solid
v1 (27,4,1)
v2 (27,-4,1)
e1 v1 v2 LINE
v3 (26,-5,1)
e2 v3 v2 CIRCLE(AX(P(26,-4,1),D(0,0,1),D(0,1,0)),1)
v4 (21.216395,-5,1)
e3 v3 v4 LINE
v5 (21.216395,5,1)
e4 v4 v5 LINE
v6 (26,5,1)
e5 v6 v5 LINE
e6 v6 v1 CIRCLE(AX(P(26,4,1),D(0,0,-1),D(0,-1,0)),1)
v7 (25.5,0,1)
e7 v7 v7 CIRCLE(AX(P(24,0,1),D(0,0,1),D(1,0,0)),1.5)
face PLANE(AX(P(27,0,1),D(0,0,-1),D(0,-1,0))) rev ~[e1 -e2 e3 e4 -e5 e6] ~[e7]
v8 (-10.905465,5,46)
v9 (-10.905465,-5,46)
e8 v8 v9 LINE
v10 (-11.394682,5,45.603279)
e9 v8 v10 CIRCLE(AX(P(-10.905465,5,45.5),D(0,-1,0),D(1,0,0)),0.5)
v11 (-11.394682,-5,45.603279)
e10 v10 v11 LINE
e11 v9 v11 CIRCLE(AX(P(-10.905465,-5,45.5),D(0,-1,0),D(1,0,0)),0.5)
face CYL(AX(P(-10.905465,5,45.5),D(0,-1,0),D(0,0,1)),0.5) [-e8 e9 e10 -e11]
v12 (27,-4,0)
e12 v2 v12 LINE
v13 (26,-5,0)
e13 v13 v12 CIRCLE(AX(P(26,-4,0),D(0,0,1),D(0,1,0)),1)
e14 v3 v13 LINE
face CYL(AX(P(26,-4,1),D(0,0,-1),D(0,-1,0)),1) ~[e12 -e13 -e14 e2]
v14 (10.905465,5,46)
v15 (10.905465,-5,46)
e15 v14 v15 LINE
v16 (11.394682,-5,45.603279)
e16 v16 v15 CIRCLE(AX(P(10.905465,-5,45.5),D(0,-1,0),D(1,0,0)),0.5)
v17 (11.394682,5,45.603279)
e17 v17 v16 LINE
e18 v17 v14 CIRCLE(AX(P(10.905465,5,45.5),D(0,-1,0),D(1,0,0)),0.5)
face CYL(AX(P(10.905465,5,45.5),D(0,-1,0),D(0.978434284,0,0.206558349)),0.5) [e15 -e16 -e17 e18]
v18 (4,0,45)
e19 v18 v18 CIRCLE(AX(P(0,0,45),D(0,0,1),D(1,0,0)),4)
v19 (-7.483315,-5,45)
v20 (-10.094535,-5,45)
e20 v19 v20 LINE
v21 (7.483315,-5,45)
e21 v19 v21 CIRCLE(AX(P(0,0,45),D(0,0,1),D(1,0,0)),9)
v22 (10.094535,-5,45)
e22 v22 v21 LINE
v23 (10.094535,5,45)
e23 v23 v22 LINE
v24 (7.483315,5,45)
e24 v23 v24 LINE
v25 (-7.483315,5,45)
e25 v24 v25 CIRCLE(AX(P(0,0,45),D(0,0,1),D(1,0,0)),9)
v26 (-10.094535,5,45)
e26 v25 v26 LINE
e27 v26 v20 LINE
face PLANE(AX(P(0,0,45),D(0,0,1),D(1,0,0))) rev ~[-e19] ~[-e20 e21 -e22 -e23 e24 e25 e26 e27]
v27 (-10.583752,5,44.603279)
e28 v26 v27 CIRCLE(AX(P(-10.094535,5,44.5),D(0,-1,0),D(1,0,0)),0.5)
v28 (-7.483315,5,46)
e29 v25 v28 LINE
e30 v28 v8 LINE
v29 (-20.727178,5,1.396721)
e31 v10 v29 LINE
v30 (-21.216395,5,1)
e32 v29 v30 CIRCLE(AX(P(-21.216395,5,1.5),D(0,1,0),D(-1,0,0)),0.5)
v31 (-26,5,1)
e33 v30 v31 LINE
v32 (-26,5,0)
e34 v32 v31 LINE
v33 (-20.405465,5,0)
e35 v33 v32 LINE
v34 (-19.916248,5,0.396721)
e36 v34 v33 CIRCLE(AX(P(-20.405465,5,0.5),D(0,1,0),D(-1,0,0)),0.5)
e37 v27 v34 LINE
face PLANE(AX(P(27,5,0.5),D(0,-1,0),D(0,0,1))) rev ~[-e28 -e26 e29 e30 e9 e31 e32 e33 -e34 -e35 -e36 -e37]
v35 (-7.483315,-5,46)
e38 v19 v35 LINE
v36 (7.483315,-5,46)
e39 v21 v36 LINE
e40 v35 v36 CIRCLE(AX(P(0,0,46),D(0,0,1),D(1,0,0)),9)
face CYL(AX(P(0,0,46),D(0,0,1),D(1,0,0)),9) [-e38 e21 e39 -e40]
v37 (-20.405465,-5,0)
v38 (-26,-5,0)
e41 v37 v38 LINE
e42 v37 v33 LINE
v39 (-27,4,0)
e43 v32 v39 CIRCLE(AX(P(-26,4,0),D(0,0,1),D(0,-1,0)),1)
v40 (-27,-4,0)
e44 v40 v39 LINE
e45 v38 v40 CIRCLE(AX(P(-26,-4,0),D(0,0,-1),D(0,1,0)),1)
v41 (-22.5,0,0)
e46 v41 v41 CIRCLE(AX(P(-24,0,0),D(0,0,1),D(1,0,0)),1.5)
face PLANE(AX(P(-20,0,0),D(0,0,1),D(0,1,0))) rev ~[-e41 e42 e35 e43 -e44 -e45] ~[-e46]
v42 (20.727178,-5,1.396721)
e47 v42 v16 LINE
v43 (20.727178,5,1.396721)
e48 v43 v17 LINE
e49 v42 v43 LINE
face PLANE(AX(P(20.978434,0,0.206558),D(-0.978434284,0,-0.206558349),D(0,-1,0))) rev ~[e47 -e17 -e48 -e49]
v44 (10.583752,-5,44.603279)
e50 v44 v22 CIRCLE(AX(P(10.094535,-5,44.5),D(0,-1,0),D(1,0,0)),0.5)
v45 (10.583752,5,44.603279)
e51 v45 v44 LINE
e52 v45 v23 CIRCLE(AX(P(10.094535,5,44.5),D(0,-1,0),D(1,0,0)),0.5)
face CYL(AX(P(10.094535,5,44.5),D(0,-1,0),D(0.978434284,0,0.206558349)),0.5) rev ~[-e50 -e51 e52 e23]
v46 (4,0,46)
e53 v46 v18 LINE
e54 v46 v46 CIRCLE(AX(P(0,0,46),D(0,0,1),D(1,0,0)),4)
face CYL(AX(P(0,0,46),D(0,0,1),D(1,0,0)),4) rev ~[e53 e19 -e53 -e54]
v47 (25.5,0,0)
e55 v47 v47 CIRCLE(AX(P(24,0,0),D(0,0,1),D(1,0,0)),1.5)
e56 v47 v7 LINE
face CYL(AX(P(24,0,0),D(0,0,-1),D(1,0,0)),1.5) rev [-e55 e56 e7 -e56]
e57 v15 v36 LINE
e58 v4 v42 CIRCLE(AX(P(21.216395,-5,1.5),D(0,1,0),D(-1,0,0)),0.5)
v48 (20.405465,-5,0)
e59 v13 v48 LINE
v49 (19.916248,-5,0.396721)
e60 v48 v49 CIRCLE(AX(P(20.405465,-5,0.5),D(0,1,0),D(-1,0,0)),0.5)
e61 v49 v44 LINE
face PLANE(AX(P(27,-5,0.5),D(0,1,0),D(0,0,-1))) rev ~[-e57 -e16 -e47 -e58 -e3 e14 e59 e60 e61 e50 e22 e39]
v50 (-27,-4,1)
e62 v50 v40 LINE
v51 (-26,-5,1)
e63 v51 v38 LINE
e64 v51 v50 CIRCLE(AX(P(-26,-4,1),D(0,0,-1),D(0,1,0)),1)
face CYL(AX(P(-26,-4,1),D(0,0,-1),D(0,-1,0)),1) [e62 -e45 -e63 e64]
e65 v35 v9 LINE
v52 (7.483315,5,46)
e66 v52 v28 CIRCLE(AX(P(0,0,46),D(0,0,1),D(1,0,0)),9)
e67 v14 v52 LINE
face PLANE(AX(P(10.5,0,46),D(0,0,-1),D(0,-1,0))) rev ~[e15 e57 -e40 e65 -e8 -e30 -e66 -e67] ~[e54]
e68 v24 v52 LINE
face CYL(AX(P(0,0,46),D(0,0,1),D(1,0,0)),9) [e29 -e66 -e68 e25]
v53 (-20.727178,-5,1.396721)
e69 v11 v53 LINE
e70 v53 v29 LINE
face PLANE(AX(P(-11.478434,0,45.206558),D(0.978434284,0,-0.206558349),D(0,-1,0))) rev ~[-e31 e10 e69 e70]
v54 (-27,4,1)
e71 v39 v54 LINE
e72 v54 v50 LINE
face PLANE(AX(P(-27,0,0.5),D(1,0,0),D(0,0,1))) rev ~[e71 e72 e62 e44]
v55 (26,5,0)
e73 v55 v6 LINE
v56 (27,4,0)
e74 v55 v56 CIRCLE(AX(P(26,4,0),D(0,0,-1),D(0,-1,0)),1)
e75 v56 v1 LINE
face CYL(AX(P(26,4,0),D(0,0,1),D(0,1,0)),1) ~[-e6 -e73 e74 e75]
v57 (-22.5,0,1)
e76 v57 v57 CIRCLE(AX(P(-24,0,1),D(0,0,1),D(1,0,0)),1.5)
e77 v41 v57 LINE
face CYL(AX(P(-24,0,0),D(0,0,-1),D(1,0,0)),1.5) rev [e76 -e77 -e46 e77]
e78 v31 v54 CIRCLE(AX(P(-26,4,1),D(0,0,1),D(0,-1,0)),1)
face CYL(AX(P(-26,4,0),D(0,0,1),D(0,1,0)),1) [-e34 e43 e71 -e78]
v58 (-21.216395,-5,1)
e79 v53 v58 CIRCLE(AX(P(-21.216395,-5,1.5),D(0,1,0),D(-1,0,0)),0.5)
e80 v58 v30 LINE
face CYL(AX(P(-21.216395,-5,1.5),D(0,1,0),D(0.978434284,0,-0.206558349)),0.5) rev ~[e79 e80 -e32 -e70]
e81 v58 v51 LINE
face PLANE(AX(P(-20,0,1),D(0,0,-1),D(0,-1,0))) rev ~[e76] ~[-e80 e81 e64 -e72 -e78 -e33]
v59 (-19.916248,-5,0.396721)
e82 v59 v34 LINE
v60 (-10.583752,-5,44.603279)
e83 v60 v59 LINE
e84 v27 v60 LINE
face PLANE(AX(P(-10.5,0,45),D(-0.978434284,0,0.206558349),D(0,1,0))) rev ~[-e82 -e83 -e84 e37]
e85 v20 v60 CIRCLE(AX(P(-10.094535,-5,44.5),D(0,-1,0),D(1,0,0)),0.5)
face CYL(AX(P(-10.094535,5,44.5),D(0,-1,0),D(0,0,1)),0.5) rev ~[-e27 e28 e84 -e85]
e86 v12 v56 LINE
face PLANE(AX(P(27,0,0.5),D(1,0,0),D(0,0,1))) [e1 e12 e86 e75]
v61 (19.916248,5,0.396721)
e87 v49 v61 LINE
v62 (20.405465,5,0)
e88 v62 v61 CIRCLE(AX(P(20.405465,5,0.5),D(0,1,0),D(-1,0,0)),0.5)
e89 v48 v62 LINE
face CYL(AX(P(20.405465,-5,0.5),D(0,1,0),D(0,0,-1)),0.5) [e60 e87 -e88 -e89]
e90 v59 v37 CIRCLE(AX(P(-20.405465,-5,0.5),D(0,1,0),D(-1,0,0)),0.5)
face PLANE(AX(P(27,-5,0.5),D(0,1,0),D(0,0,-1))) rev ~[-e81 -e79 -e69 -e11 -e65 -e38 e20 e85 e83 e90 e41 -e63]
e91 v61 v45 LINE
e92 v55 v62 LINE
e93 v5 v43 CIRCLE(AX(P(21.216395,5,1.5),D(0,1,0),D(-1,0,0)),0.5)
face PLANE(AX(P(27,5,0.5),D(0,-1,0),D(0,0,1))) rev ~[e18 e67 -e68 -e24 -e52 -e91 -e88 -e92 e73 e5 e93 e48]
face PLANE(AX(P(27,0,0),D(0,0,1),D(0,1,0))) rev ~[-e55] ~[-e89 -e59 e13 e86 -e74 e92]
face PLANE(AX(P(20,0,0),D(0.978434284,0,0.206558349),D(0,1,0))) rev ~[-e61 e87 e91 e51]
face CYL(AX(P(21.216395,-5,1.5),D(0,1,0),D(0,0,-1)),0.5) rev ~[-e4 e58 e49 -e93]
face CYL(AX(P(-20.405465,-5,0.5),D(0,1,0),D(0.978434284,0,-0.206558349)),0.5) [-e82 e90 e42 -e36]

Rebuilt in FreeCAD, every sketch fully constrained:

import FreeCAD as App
import Part
import Sketcher


def edges_at(feature, points):
    """Names of the edges that pass closest to the given points."""
    edges = feature.Shape.Edges
    near = lambda p: min(range(len(edges)), key=lambda i: edges[i].distToShape(Part.Vertex(*p))[0])
    return sorted({f"Edge{near(p) + 1}" for p in points})

doc = App.newDocument("Part")
params = doc.addObject("Spreadsheet::Sheet", "Params")
for row, (alias, value) in enumerate([
    ("sketch1_width", "10 mm"),
    ("sketch1_height", "1 mm"),
    ("sketch2_width", "7 mm"),
    ("sketch2_width2", "21 mm"),
    ("fillet_radius", "0.5 mm"),
    ("sketch3_diameter", "18 mm"),
    ("sketch4_diameter", "8 mm"),
    ("sketch5_diameter", "3 mm"),
    ("fillet2_radius", "1 mm"),
], start=1):
    params.set(f"A{row}", alias)
    params.set(f"B{row}", "=" + value)
    params.setAlias(f"B{row}", alias)

body = doc.addObject("PartDesign::Body", "Body")

# Sketch on YZ plane
sketch1 = doc.addObject("Sketcher::SketchObject", "Sketch")
body.addObject(sketch1)
sketch1.AttachmentSupport = (doc.YZ_Plane, [""])
sketch1.MapMode = "FlatFace"
sketch1.AttachmentOffset = App.Placement(App.Vector(0, 0, 27), App.Rotation())
sketch1.addGeometry([
    Part.LineSegment(App.Vector(-5, 1, 0), App.Vector(-5, 0, 0)),
    Part.LineSegment(App.Vector(-5, 0, 0), App.Vector(5, 0, 0)),
    Part.LineSegment(App.Vector(5, 0, 0), App.Vector(5, 1, 0)),
    Part.LineSegment(App.Vector(5, 1, 0), App.Vector(-5, 1, 0)),
], False)
sketch1.addConstraint([
    Sketcher.Constraint("Coincident", 0, 2, 1, 1),
    Sketcher.Constraint("Coincident", 1, 2, 2, 1),
    Sketcher.Constraint("Coincident", 2, 2, 3, 1),
    Sketcher.Constraint("Coincident", 3, 2, 0, 1),
    Sketcher.Constraint("Vertical", 0),
    Sketcher.Constraint("Horizontal", 1),
    Sketcher.Constraint("Vertical", 2),
    Sketcher.Constraint("Horizontal", 3),
    Sketcher.Constraint("Symmetric", 0, 2, 1, 2, -1, 1),
    Sketcher.Constraint("DistanceX", 1, 1, 1, 2, 10.0),
    Sketcher.Constraint("DistanceY", 0, 2, 0, 1, 1.0),
])
sketch1.setExpression("Constraints[9]", "Params.sketch1_width")
sketch1.setExpression("Constraints[10]", "Params.sketch1_height")

# Sketch on XZ plane
sketch2 = doc.addObject("Sketcher::SketchObject", "Sketch001")
body.addObject(sketch2)
sketch2.AttachmentSupport = (doc.XZ_Plane, [""])
sketch2.MapMode = "FlatFace"
sketch2.addGeometry([
    Part.LineSegment(App.Vector(27, 0, 0), App.Vector(20, 0, 0)),  # 0
    Part.LineSegment(App.Vector(20, 0, 0), App.Vector(10, 45, 0)),  # 1
    Part.LineSegment(App.Vector(10, 45, 0), App.Vector(-10, 45, 0)),  # 2
    Part.LineSegment(App.Vector(-10, 45, 0), App.Vector(-20, 0, 0)),  # 3
    Part.LineSegment(App.Vector(-20, 0, 0), App.Vector(-27, 0, 0)),  # 4
], False)
sketch2.addConstraint([
    Sketcher.Constraint("Coincident", 0, 2, 1, 1),
    Sketcher.Constraint("Coincident", 1, 2, 2, 1),
    Sketcher.Constraint("Coincident", 2, 2, 3, 1),
    Sketcher.Constraint("Coincident", 3, 2, 4, 1),
    Sketcher.Constraint("Horizontal", 0),
    Sketcher.Constraint("Horizontal", 2),
    Sketcher.Constraint("Horizontal", 4),
    Sketcher.Constraint("Symmetric", 0, 2, 3, 2, -1, 1),
    Sketcher.Constraint("Symmetric", 0, 1, 4, 2, -2),
    Sketcher.Constraint("Equal", 1, 3),
    Sketcher.Constraint("DistanceX", 0, 2, 0, 1, 7.0),
    Sketcher.Constraint("DistanceX", 2, 2, 2, 1, 21.0),
    Sketcher.Constraint("DistanceX", -1, 1, 0, 1, 27.0),
    Sketcher.Constraint("DistanceY", -1, 1, 1, 2, 45.0),
])
sketch2.setExpression("Constraints[10]", "Params.sketch2_width")
sketch2.setExpression("Constraints[11]", "Params.sketch2_width2")
doc.recompute()

additivepipe = doc.addObject("PartDesign::AdditivePipe", "AdditivePipe")
body.addObject(additivepipe)
additivepipe.Profile = sketch1
additivepipe.Spine = (sketch2, ["Edge1", "Edge2", "Edge3", "Edge4", "Edge5"])
additivepipe.Transition = "Right corner"
doc.recompute()

fillet = doc.addObject("PartDesign::Fillet", "Fillet")
body.addObject(fillet)
fillet.Base = (additivepipe, edges_at(additivepipe, [
    (20.811, 0, 1),
    (11.311, 0, 46),
    (-11.311, 0, 46),
    (-20.811, 0, 1),
    (20, 0, 0),
    (10.5, 0, 45),
    (-20, 0, 0),
    (-10.5, 0, 45),
]))
fillet.setExpression("Radius", "Params.fillet_radius")

# Sketch on XY plane
sketch3 = doc.addObject("Sketcher::SketchObject", "Sketch002")
body.addObject(sketch3)
sketch3.AttachmentSupport = (doc.XY_Plane, [""])
sketch3.MapMode = "FlatFace"
sketch3.AttachmentOffset = App.Placement(App.Vector(0, 0, 46), App.Rotation())
sketch3.addGeometry(Part.Circle(App.Vector(0, 0, 0), App.Vector(0, 0, 1), 9), False)
sketch3.addConstraint([
    Sketcher.Constraint("Coincident", 0, 3, -1, 1),
    Sketcher.Constraint("Diameter", 0, 18.0),
])
sketch3.setExpression("Constraints[1]", "Params.sketch3_diameter")
pad1 = doc.addObject("PartDesign::Pad", "Pad")
body.addObject(pad1)
pad1.Profile = sketch3
pad1.Type = "UpToLast"
pad1.Reversed = True

# Sketch on XY plane
sketch4 = doc.addObject("Sketcher::SketchObject", "Sketch003")
body.addObject(sketch4)
sketch4.AttachmentSupport = (doc.XY_Plane, [""])
sketch4.MapMode = "FlatFace"
sketch4.AttachmentOffset = App.Placement(App.Vector(0, 0, 46), App.Rotation())
sketch4.addGeometry(Part.Circle(App.Vector(0, 0, 0), App.Vector(0, 0, 1), 4), False)
sketch4.addConstraint([
    Sketcher.Constraint("Coincident", 0, 3, -1, 1),
    Sketcher.Constraint("Diameter", 0, 8.0),
])
sketch4.setExpression("Constraints[1]", "Params.sketch4_diameter")
pocket1 = doc.addObject("PartDesign::Pocket", "Pocket")
body.addObject(pocket1)
pocket1.Profile = sketch4
pocket1.Type = "ThroughAll"

# Sketch on XY plane
sketch5 = doc.addObject("Sketcher::SketchObject", "Sketch004")
body.addObject(sketch5)
sketch5.AttachmentSupport = (doc.XY_Plane, [""])
sketch5.MapMode = "FlatFace"
sketch5.addGeometry([
    Part.Circle(App.Vector(-24, 0, 0), App.Vector(0, 0, 1), 1.5),
    Part.Circle(App.Vector(24, 0, 0), App.Vector(0, 0, 1), 1.5),
], False)
sketch5.addConstraint([
    Sketcher.Constraint("Equal", 0, 1),
    Sketcher.Constraint("Symmetric", 0, 3, 1, 3, -1, 1),
    Sketcher.Constraint("PointOnObject", 0, 3, -1),
    Sketcher.Constraint("Diameter", 0, 3.0),
    Sketcher.Constraint("DistanceX", 0, 3, -1, 1, 24.0),
])
sketch5.setExpression("Constraints[3]", "Params.sketch5_diameter")
pocket2 = doc.addObject("PartDesign::Pocket", "Pocket001")
body.addObject(pocket2)
pocket2.Profile = sketch5
pocket2.Type = "ThroughAll"
pocket2.Reversed = True
doc.recompute()

fillet2 = doc.addObject("PartDesign::Fillet", "Fillet001")
body.addObject(fillet2)
fillet2.Base = (pocket2, edges_at(pocket2, [
    (27, -5, 0.5),
    (27, 5, 0.5),
    (-27, 5, 0.5),
    (-27, -5, 0.5),
]))
fillet2.setExpression("Radius", "Params.fillet2_radius")

doc.recompute()
